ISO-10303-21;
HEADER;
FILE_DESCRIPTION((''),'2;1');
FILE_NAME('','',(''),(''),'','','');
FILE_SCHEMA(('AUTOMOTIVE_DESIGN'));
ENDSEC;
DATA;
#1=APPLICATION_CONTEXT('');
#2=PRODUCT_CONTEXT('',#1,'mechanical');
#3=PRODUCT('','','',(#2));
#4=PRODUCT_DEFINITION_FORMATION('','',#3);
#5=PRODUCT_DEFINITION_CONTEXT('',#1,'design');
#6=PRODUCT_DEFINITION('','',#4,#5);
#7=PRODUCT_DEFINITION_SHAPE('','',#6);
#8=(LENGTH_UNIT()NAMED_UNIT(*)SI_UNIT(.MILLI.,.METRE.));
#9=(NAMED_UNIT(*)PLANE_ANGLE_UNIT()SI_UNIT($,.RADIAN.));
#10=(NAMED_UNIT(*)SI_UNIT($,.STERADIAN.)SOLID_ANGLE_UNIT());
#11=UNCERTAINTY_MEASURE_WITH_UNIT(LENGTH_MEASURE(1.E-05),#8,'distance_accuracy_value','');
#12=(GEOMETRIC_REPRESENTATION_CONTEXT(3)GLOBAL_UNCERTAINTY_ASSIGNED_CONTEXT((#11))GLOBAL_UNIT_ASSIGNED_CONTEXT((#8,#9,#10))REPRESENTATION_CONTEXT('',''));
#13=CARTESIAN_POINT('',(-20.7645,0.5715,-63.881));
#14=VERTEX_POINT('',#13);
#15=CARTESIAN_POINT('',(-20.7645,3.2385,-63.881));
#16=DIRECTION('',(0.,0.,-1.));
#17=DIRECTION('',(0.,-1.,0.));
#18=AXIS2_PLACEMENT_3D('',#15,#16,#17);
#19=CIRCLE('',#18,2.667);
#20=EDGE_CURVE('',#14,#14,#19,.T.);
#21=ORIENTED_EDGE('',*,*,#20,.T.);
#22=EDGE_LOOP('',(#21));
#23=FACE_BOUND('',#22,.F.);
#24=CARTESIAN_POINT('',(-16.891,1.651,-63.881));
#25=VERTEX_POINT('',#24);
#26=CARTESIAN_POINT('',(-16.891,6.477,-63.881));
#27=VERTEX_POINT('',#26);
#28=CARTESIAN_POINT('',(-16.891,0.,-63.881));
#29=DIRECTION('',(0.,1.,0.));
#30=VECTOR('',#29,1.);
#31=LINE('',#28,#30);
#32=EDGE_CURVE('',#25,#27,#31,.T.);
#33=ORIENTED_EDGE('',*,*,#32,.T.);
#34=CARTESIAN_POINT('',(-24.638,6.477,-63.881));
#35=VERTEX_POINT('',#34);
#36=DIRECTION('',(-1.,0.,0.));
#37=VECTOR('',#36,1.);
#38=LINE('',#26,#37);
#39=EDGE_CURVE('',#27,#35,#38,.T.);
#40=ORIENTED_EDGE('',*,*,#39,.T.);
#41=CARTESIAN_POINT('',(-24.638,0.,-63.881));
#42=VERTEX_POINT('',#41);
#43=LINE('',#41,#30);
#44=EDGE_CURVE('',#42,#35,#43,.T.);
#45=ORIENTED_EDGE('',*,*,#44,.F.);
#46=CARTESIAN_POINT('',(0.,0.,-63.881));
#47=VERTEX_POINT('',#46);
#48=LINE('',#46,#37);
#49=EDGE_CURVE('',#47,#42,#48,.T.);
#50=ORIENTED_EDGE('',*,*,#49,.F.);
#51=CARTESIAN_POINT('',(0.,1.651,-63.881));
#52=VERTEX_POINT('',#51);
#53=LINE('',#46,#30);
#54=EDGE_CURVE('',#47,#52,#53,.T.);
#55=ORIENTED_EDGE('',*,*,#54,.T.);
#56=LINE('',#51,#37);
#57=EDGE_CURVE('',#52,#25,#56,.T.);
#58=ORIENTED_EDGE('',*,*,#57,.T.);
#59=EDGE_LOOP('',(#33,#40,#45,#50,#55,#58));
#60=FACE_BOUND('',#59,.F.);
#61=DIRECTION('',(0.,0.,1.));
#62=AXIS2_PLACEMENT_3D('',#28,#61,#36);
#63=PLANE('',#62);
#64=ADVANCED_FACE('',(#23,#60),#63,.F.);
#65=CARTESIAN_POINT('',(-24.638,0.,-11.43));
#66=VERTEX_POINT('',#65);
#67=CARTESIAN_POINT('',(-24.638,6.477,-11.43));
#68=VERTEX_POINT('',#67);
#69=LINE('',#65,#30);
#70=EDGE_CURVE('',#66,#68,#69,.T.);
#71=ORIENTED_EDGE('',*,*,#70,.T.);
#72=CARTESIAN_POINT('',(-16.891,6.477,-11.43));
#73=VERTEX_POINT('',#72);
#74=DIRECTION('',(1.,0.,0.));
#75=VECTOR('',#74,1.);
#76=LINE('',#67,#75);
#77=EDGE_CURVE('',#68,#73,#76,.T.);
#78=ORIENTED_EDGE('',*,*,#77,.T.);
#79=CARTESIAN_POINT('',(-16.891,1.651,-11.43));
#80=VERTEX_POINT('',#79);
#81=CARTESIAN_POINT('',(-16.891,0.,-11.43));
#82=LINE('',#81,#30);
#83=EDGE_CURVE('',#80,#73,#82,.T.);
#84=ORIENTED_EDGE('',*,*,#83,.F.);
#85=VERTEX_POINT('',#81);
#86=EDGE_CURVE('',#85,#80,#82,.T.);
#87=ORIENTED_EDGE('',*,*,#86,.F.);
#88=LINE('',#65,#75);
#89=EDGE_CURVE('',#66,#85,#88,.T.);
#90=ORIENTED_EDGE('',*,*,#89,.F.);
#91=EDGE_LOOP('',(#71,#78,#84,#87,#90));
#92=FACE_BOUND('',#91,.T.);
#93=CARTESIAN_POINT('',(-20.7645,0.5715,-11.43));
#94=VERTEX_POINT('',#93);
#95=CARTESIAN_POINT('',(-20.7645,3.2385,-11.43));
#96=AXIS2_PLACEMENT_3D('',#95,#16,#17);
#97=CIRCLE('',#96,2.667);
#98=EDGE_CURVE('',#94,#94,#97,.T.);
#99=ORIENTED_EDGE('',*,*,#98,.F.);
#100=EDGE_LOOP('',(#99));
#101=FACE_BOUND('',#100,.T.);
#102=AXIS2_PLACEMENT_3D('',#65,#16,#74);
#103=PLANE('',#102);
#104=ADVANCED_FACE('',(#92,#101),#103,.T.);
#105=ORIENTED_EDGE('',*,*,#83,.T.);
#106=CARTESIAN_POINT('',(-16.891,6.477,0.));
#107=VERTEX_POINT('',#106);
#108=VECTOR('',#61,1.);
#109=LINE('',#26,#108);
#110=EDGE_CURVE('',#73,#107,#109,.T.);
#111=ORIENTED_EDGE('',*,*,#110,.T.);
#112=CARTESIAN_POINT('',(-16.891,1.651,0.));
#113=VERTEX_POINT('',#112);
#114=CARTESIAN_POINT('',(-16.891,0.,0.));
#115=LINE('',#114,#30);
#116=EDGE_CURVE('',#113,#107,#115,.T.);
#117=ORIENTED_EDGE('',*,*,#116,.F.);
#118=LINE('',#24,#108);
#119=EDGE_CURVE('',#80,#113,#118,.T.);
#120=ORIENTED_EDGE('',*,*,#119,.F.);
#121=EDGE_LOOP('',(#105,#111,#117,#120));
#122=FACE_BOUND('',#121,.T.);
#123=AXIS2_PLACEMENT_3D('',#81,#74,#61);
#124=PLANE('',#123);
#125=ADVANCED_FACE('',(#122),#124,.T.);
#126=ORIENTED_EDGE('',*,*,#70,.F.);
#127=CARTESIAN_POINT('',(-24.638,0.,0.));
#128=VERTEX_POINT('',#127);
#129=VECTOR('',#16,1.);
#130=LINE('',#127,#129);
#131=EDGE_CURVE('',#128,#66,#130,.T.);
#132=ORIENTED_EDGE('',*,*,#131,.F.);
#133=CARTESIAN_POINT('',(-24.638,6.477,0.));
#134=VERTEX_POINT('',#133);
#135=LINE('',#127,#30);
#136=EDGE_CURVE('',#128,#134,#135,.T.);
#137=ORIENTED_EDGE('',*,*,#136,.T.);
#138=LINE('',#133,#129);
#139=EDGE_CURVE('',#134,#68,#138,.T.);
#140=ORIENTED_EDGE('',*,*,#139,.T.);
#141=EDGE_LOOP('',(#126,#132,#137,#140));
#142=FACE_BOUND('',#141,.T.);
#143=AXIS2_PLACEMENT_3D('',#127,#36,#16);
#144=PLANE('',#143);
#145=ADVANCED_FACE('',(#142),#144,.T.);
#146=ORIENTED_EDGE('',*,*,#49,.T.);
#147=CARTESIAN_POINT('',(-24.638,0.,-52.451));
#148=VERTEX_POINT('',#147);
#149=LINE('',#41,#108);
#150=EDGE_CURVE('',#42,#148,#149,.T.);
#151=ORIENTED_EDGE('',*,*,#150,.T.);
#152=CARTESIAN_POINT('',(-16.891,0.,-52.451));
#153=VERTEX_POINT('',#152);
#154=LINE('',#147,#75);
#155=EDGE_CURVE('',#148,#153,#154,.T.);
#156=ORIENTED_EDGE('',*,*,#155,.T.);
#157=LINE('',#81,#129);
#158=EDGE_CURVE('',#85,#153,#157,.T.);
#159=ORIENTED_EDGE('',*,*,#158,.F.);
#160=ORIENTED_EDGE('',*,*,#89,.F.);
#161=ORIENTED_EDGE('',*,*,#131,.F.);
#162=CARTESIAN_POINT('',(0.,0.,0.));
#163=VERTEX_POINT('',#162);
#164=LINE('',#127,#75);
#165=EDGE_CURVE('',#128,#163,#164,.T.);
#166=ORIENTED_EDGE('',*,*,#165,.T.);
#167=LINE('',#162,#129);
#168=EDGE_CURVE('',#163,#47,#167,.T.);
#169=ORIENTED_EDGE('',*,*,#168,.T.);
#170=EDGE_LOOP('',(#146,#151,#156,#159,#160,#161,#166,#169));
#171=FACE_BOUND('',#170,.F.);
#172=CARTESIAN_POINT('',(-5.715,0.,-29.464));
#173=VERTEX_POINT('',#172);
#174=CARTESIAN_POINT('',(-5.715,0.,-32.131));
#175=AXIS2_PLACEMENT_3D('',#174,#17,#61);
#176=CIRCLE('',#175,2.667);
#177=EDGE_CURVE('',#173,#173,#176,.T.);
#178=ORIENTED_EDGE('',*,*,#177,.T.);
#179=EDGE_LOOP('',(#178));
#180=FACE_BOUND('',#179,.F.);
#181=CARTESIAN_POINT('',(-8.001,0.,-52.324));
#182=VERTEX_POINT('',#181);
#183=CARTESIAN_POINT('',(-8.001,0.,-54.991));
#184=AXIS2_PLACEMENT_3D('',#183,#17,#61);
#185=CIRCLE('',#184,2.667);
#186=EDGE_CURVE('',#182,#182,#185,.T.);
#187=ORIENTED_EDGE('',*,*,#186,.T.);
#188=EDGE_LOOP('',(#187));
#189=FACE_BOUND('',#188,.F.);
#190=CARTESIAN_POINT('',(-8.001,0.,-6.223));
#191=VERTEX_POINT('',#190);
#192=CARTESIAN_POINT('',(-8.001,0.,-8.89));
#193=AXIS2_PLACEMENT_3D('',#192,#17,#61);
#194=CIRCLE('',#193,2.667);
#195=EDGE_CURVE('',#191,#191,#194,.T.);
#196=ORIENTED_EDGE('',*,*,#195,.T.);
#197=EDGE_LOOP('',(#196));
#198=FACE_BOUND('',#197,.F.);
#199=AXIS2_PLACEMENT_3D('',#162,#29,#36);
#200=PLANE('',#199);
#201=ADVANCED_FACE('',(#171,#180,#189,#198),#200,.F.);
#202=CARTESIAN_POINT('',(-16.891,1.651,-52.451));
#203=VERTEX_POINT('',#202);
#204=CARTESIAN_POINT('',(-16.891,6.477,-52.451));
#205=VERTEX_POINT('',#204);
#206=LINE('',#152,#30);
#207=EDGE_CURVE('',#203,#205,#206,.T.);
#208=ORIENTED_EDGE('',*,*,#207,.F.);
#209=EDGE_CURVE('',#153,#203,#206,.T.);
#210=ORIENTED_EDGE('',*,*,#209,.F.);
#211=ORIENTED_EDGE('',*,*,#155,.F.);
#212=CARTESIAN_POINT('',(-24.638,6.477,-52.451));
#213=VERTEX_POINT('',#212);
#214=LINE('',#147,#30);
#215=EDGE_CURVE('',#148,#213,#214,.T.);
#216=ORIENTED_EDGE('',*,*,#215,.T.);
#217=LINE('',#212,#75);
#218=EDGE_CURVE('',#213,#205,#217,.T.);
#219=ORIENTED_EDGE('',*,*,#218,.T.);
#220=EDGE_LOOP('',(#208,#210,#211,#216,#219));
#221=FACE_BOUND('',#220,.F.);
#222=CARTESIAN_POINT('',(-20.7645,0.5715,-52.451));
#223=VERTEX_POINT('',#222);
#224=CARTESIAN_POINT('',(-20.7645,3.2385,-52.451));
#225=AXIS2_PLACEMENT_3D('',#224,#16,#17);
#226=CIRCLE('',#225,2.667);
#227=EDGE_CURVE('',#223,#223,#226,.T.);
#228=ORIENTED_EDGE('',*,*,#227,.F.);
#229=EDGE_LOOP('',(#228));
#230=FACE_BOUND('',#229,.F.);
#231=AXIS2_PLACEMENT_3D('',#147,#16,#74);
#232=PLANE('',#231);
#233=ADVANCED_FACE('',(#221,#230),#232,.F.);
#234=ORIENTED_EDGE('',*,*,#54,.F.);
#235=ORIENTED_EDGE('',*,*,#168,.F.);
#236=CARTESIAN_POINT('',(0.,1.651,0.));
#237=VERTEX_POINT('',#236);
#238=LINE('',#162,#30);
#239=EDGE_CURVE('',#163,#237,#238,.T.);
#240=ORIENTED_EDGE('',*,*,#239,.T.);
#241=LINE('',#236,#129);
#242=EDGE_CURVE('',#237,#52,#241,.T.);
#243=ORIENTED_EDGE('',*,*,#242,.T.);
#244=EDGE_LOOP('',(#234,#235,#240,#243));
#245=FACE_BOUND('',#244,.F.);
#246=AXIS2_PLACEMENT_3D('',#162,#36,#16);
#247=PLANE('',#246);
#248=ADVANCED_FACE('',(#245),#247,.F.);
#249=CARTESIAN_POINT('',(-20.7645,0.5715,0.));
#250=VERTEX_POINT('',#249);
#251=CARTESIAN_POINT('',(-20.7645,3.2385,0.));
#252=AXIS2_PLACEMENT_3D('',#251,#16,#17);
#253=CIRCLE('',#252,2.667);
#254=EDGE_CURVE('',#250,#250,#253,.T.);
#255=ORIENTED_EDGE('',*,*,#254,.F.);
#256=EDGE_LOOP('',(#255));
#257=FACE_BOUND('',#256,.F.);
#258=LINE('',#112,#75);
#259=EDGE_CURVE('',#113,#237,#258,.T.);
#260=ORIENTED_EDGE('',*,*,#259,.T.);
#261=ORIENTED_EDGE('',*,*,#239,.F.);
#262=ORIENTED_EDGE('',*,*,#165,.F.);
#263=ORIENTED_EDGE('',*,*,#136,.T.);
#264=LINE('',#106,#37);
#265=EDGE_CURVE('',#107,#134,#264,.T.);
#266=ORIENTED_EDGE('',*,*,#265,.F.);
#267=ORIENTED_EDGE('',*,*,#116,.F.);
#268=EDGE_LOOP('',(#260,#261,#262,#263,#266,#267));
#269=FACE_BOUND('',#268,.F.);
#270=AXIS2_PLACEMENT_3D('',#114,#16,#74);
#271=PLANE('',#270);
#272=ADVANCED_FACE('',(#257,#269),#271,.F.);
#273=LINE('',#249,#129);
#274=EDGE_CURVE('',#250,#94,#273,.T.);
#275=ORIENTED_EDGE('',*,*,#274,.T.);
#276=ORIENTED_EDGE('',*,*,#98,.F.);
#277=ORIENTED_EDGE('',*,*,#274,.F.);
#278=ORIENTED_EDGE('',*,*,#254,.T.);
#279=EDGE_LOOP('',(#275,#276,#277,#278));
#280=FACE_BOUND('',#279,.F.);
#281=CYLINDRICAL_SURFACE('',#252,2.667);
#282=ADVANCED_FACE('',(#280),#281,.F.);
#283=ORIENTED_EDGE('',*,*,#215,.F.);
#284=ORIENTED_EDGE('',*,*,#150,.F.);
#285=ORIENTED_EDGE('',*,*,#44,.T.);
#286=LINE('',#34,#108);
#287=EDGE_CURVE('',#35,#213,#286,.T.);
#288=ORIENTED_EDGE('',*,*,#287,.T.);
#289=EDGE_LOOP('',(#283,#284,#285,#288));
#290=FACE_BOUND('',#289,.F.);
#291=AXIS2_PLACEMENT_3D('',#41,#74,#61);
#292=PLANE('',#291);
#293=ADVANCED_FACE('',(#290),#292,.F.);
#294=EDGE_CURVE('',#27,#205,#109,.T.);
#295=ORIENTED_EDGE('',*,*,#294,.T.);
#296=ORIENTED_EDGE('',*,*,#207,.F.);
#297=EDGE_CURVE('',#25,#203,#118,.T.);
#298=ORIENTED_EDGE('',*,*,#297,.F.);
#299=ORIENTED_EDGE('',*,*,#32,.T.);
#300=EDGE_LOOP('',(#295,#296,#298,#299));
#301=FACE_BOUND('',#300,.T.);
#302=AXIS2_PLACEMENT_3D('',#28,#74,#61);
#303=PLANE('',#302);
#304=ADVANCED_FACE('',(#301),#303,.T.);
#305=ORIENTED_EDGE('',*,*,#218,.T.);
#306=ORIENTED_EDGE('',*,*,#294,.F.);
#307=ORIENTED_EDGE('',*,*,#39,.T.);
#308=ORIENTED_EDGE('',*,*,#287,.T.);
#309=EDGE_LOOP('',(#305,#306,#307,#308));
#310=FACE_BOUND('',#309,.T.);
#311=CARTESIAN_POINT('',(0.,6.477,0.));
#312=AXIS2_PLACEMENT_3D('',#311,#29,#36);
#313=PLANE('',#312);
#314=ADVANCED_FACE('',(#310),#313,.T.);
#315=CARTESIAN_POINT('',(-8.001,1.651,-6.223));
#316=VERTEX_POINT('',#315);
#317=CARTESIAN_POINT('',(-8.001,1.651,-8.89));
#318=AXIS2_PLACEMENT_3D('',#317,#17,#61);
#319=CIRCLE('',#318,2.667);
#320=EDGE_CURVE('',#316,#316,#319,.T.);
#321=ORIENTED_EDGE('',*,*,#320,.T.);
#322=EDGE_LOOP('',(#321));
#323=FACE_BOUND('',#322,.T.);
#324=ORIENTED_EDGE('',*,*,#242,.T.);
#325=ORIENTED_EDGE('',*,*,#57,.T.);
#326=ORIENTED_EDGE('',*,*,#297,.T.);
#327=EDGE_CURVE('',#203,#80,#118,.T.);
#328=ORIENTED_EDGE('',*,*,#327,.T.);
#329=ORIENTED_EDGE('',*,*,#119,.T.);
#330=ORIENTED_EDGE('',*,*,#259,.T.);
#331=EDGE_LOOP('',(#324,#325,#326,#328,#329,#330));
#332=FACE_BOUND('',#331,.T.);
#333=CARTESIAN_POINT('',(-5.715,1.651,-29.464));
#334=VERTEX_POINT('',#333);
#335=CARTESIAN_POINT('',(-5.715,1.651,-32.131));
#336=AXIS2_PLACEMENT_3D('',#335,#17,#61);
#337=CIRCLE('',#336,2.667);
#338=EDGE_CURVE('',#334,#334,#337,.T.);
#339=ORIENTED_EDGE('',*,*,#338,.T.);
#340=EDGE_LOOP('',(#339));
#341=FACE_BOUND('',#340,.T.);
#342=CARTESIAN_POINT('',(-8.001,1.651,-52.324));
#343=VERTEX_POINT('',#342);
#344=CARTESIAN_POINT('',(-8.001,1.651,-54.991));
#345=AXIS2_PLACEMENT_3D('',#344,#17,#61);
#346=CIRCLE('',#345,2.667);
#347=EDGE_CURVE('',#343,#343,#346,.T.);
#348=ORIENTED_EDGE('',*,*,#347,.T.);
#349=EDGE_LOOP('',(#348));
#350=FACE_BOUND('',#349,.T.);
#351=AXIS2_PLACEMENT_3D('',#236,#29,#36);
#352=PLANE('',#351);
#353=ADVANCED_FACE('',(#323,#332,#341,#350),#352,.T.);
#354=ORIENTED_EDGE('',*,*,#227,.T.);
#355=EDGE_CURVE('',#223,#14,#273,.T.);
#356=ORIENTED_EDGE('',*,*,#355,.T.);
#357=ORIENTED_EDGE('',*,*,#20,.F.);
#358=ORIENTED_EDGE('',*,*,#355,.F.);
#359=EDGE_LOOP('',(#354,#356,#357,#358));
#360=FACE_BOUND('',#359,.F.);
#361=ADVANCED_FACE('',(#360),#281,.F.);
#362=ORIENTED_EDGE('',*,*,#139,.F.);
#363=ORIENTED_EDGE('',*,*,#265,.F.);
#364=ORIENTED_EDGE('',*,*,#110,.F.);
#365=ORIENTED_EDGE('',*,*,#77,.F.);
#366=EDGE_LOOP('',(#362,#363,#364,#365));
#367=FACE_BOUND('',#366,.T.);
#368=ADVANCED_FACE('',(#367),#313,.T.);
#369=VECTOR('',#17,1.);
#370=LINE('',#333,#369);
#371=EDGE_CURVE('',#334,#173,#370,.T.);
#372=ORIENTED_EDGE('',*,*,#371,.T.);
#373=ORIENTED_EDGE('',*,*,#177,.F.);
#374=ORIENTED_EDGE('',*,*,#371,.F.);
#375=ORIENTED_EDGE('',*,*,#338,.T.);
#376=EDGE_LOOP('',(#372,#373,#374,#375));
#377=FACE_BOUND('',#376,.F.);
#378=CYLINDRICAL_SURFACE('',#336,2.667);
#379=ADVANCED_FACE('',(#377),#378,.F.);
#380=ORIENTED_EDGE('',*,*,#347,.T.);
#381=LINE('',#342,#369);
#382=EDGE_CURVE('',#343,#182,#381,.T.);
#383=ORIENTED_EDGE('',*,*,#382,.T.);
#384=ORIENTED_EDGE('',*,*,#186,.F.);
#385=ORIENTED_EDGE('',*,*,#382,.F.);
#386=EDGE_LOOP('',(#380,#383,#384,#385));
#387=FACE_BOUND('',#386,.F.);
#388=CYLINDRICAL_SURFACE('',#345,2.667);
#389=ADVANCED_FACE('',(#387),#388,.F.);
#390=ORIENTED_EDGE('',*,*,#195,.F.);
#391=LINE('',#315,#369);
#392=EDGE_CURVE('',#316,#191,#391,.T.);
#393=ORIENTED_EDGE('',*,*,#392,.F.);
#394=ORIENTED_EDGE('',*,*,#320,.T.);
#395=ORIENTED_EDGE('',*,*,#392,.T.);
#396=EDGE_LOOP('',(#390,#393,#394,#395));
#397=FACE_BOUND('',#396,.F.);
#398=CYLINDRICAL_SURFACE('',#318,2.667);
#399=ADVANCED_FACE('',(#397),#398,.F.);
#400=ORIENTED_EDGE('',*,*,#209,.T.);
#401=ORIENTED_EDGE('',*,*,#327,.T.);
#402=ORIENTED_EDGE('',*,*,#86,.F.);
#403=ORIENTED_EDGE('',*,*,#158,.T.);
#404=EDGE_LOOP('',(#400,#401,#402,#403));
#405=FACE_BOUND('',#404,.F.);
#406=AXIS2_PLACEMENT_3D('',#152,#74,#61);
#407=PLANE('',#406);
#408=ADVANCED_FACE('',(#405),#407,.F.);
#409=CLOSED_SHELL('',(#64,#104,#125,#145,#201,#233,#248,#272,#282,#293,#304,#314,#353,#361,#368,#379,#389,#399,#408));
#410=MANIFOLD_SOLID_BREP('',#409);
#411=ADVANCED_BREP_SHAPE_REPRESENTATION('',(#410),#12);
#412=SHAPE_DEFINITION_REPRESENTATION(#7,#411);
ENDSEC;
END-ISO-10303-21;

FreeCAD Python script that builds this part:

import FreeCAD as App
import Part
import Sketcher
from FreeCAD import Vector
Q = App.Units.Quantity


def add_polygon(sketch, points):
    """Adds a closed chain of lines whose ends are joined by coincident constraints."""
    first, n = sketch.GeometryCount, len(points)
    for a, b in zip(points, points[1:] + points[:1]):
        sketch.addGeometry(Part.LineSegment(App.Vector(*a, 0), App.Vector(*b, 0)), False)
    for i in range(n):
        sketch.addConstraint(Sketcher.Constraint("Coincident", first + i, 2, first + (i + 1) % n, 1))

doc = App.newDocument("Part")
body = doc.addObject("PartDesign::Body", "Body")

# Sketch on XZ plane
sketch1 = body.newObject("Sketcher::SketchObject", "Sketch")
sketch1.AttachmentSupport = (doc.getObject("XZ_Plane"), [""])
sketch1.MapMode = "FlatFace"
add_polygon(sketch1, [(-17, 0), (0, 0), (0, -64), (-17, -64)])  # lines 0-3
sketch1.addConstraint([
    Sketcher.Constraint("Horizontal", 0),
    Sketcher.Constraint("Vertical", 1),
    Sketcher.Constraint("Horizontal", 2),
    Sketcher.Constraint("Vertical", 3),
    Sketcher.Constraint("Coincident", 0, 2, -1, 1),
    Sketcher.Constraint("DistanceX", 0, 1, 0, 2, Q("0.665 in")),
    Sketcher.Constraint("DistanceY", 1, 2, 1, 1, Q("2.515 in")),
])
pad1 = body.newObject("PartDesign::Pad", "Pad")
pad1.Profile = sketch1
pad1.Length = Q("0.065 in")
pad1.Reversed = True

# Sketch on XZ plane
sketch2 = body.newObject("Sketcher::SketchObject", "Sketch001")
sketch2.AttachmentSupport = (doc.getObject("XZ_Plane"), [""])
sketch2.MapMode = "FlatFace"
add_polygon(sketch2, [(-25, 0), (-17, 0), (-17, -11), (-25, -11)])  # lines 0-3
sketch2.addConstraint([
    Sketcher.Constraint("Horizontal", 0),
    Sketcher.Constraint("Vertical", 1),
    Sketcher.Constraint("Horizontal", 2),
    Sketcher.Constraint("Vertical", 3),
    Sketcher.Constraint("PointOnObject", 0, 2, -1),
    Sketcher.Constraint("DistanceY", 1, 2, 1, 1, Q("0.45 in")),
    Sketcher.Constraint("DistanceX", 0, 1, 0, 2, Q("0.305 in")),
    Sketcher.Constraint("DistanceX", 0, 2, -1, 1, Q("0.665 in")),
])
pad2 = body.newObject("PartDesign::Pad", "Pad001")
pad2.Profile = sketch2
pad2.Length = Q("0.255 in")
pad2.Reversed = True

# Sketch on XZ plane
sketch3 = body.newObject("Sketcher::SketchObject", "Sketch002")
sketch3.AttachmentSupport = (doc.getObject("XZ_Plane"), [""])
sketch3.MapMode = "FlatFace"
add_polygon(sketch3, [(-17, -52), (-17, -64), (-25, -64), (-25, -52)])  # lines 0-3
sketch3.addConstraint([
    Sketcher.Constraint("Vertical", 0),
    Sketcher.Constraint("Horizontal", 1),
    Sketcher.Constraint("Vertical", 2),
    Sketcher.Constraint("Horizontal", 3),
    Sketcher.Constraint("DistanceY", 0, 2, 0, 1, Q("0.45 in")),
    Sketcher.Constraint("DistanceX", 1, 2, 1, 1, Q("0.305 in")),
    Sketcher.Constraint("DistanceX", 0, 2, -1, 1, Q("0.665 in")),
    Sketcher.Constraint("DistanceY", 0, 2, -1, 1, Q("2.515 in")),
])
pad3 = body.newObject("PartDesign::Pad", "Pad002")
pad3.Profile = sketch3
pad3.Length = Q("0.255 in")
pad3.Reversed = True

# Sketch on XZ plane
sketch4 = body.newObject("Sketcher::SketchObject", "Sketch003")
sketch4.AttachmentSupport = (doc.getObject("XZ_Plane"), [""])
sketch4.MapMode = "FlatFace"
sketch4.AttachmentOffset = App.Placement(Vector(0, 0, -0.065 * 25.4), App.Rotation())
sketch4.addGeometry(Part.Circle(Vector(-8, -8.9, 0), Vector(0, 0, 1), 2.7), False)
sketch4.addConstraint([
    Sketcher.Constraint("Diameter", 0, Q("0.21 in")),
    Sketcher.Constraint("DistanceY", 0, 3, -1, 1, Q("0.35 in")),
    Sketcher.Constraint("DistanceX", 0, 3, -1, 1, Q("0.315 in")),
])
doc.recompute()
hole = body.newObject("PartDesign::Hole", "Hole")
hole.Profile = sketch4
hole.ThreadType = "None"
hole.Diameter = Q("0.21 in")
hole.DepthType = "ThroughAll"
hole.Reversed = True

# Sketch on XZ plane
sketch5 = body.newObject("Sketcher::SketchObject", "Sketch004")
sketch5.AttachmentSupport = (doc.getObject("XZ_Plane"), [""])
sketch5.MapMode = "FlatFace"
sketch5.AttachmentOffset = App.Placement(Vector(0, 0, -0.065 * 25.4), App.Rotation())
sketch5.addGeometry(Part.Circle(Vector(-8, -55, 0), Vector(0, 0, 1), 2.7), False)
sketch5.addConstraint([
    Sketcher.Constraint("Diameter", 0, Q("0.21 in")),
    Sketcher.Constraint("DistanceX", 0, 3, -1, 1, Q("0.315 in")),
    Sketcher.Constraint("DistanceY", 0, 3, -1, 1, Q("2.165 in")),
])
doc.recompute()
hole2 = body.newObject("PartDesign::Hole", "Hole001")
hole2.Profile = sketch5
hole2.ThreadType = "None"
hole2.Diameter = Q("0.21 in")
hole2.DepthType = "ThroughAll"
hole2.Reversed = True

# Sketch on XZ plane
sketch6 = body.newObject("Sketcher::SketchObject", "Sketch005")
sketch6.AttachmentSupport = (doc.getObject("XZ_Plane"), [""])
sketch6.MapMode = "FlatFace"
sketch6.AttachmentOffset = App.Placement(Vector(0, 0, -0.065 * 25.4), App.Rotation())
sketch6.addGeometry(Part.Circle(Vector(-5.7, -32.1, 0), Vector(0, 0, 1), 2.7), False)
sketch6.addConstraint([
    Sketcher.Constraint("Diameter", 0, Q("0.21 in")),
    Sketcher.Constraint("DistanceX", 0, 3, -1, 1, Q("0.225 in")),
    Sketcher.Constraint("DistanceY", 0, 3, -1, 1, Q("1.265 in")),
])
doc.recompute()
hole3 = body.newObject("PartDesign::Hole", "Hole002")
hole3.Profile = sketch6
hole3.ThreadType = "None"
hole3.Diameter = Q("0.21 in")
hole3.DepthType = "ThroughAll"
hole3.Reversed = True

# Sketch on XY plane
sketch7 = body.newObject("Sketcher::SketchObject", "Sketch006")
sketch7.AttachmentSupport = (doc.getObject("XY_Plane"), [""])
sketch7.MapMode = "FlatFace"
sketch7.addGeometry(Part.Circle(Vector(-20.8, 3.2, 0), Vector(0, 0, 1), 2.7), False)
sketch7.addConstraint([
    Sketcher.Constraint("Diameter", 0, Q("0.21 in")),
    Sketcher.Constraint("DistanceX", 0, 3, -1, 1, Q("0.8175 in")),
    Sketcher.Constraint("DistanceY", -1, 1, 0, 3, Q("0.1275 in")),
])
doc.recompute()
hole4 = body.newObject("PartDesign::Hole", "Hole003")
hole4.Profile = sketch7
hole4.ThreadType = "None"
hole4.Diameter = Q("0.21 in")
hole4.DepthType = "ThroughAll"

doc.recompute()
